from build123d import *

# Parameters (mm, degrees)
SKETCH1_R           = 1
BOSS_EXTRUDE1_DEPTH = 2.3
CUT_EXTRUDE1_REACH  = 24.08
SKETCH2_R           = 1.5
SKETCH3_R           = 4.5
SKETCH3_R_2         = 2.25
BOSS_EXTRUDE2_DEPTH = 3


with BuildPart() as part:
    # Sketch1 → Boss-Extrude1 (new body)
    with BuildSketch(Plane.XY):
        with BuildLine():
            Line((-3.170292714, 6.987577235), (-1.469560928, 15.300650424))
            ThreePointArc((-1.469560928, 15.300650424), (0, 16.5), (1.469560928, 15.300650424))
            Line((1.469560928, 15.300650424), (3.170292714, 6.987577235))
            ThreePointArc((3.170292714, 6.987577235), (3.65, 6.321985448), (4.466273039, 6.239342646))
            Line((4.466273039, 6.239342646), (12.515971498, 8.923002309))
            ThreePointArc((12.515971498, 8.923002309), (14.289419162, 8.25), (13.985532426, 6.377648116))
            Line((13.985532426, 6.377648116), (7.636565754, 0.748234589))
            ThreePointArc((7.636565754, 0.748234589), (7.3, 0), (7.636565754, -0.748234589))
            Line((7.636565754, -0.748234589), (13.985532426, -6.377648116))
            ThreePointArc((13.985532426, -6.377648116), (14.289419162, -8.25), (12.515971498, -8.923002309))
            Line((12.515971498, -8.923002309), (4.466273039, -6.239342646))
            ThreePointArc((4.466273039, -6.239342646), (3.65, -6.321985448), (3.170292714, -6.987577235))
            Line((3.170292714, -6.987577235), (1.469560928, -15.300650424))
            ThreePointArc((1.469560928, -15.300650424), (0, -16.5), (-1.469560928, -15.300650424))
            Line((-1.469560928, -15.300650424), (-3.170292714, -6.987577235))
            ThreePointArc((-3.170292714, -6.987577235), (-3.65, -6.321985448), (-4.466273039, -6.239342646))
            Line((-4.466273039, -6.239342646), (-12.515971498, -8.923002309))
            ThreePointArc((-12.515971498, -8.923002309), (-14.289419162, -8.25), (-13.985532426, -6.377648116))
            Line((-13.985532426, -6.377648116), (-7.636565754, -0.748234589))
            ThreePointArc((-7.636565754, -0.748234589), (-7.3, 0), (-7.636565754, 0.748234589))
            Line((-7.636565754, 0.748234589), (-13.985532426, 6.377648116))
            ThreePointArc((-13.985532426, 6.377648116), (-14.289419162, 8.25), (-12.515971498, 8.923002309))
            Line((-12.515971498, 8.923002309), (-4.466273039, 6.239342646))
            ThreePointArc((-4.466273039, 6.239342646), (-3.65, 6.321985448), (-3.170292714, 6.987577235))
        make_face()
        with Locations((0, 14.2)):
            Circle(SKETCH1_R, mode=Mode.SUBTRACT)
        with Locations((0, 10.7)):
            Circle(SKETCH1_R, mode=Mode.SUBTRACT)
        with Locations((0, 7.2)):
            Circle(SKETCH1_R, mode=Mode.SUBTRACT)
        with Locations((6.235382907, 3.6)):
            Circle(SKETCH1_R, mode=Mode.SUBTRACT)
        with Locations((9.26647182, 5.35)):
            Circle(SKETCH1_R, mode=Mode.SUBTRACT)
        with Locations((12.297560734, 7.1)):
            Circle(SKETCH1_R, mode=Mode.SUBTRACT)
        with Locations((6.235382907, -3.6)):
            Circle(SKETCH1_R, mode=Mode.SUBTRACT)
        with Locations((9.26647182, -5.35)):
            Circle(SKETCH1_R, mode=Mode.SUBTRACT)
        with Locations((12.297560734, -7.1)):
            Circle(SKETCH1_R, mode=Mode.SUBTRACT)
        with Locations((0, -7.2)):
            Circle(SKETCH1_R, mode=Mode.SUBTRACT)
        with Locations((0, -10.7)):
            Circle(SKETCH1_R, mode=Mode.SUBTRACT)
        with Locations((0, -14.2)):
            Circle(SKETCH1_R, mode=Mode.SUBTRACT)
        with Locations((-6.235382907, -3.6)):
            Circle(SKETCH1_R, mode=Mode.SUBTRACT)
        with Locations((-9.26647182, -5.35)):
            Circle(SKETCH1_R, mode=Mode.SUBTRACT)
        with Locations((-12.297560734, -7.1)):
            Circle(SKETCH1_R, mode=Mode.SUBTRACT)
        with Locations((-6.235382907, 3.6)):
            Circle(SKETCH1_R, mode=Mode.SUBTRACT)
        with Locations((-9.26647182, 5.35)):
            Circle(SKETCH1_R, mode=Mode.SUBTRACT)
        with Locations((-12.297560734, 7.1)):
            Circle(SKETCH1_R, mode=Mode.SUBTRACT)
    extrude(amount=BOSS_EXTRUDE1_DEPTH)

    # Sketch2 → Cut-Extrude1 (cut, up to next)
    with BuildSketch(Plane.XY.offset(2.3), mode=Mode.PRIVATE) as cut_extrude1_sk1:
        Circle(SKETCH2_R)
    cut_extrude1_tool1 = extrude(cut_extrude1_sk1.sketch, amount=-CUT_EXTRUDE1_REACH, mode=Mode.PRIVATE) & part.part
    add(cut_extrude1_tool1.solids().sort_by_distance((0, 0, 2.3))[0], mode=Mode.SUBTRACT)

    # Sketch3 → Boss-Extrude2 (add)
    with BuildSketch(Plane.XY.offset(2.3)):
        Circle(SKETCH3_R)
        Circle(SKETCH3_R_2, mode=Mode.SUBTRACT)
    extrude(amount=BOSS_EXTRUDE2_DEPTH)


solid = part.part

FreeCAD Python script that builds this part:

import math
import FreeCAD as App
import Part
import Sketcher

doc = App.newDocument("Part")
body = doc.addObject("PartDesign::Body", "Body")

sketch1 = body.newObject("Sketcher::SketchObject", "Sketch")
sketch1.AttachmentSupport = (doc.getObject("XY_Plane"), [""])
sketch1.MapMode = "FlatFace"
sketch1.addGeometry(Part.LineSegment(App.Vector(-1.5, 15.3, 0), App.Vector(-3.2, 7, 0)), False)
sketch1.addGeometry(Part.ArcOfCircle(Part.Circle(App.Vector(-4.2, 7.2, 0), App.Vector(0, 0, 1), 1), math.radians(-108), math.radians(-12)), False)
sketch1.addGeometry(Part.LineSegment(App.Vector(-4.5, 6.2, 0), App.Vector(-12.5, 8.9, 0)), False)
sketch1.addGeometry(Part.ArcOfCircle(Part.Circle(App.Vector(-13, 7.5, 0), App.Vector(0, 0, 1), 1.5), math.radians(72), math.radians(228)), False)
sketch1.addGeometry(Part.LineSegment(App.Vector(-14, 6.4, 0), App.Vector(-7.6, 0.7, 0)), False)
sketch1.addGeometry(Part.ArcOfCircle(Part.Circle(App.Vector(-8.3, 0, 0), App.Vector(0, 0, 1), 1), math.radians(-48), math.radians(48)), False)
sketch1.addGeometry(Part.LineSegment(App.Vector(-7.6, -0.7, 0), App.Vector(-14, -6.4, 0)), False)
sketch1.addGeometry(Part.ArcOfCircle(Part.Circle(App.Vector(-13, -7.5, 0), App.Vector(0, 0, 1), 1.5), math.radians(132), math.radians(288)), False)
sketch1.addGeometry(Part.LineSegment(App.Vector(-12.5, -8.9, 0), App.Vector(-4.5, -6.2, 0)), False)
sketch1.addGeometry(Part.ArcOfCircle(Part.Circle(App.Vector(-4.2, -7.2, 0), App.Vector(0, 0, 1), 1), math.radians(12), math.radians(108)), False)
sketch1.addGeometry(Part.LineSegment(App.Vector(-3.2, -7, 0), App.Vector(-1.5, -15.3, 0)), False)
sketch1.addGeometry(Part.ArcOfCircle(Part.Circle(App.Vector(0, -15, 0), App.Vector(0, 0, 1), 1.5), math.radians(-168), math.radians(-12)), False)
sketch1.addGeometry(Part.LineSegment(App.Vector(1.5, -15.3, 0), App.Vector(3.2, -7, 0)), False)
sketch1.addGeometry(Part.ArcOfCircle(Part.Circle(App.Vector(4.2, -7.2, 0), App.Vector(0, 0, 1), 1), math.radians(72), math.radians(168)), False)
sketch1.addGeometry(Part.LineSegment(App.Vector(4.5, -6.2, 0), App.Vector(12.5, -8.9, 0)), False)
sketch1.addGeometry(Part.ArcOfCircle(Part.Circle(App.Vector(13, -7.5, 0), App.Vector(0, 0, 1), 1.5), math.radians(-108), math.radians(48)), False)
sketch1.addGeometry(Part.LineSegment(App.Vector(14, -6.4, 0), App.Vector(7.6, -0.7, 0)), False)
sketch1.addGeometry(Part.ArcOfCircle(Part.Circle(App.Vector(8.3, 0, 0), App.Vector(0, 0, 1), 1), math.radians(132), math.radians(228)), False)
sketch1.addGeometry(Part.LineSegment(App.Vector(7.6, 0.7, 0), App.Vector(14, 6.4, 0)), False)
sketch1.addGeometry(Part.ArcOfCircle(Part.Circle(App.Vector(13, 7.5, 0), App.Vector(0, 0, 1), 1.5), math.radians(-48), math.radians(108)), False)
sketch1.addGeometry(Part.LineSegment(App.Vector(12.5, 8.9, 0), App.Vector(4.5, 6.2, 0)), False)
sketch1.addGeometry(Part.ArcOfCircle(Part.Circle(App.Vector(4.2, 7.2, 0), App.Vector(0, 0, 1), 1), math.radians(-168), math.radians(-72)), False)
sketch1.addGeometry(Part.LineSegment(App.Vector(3.2, 7, 0), App.Vector(1.5, 15.3, 0)), False)
sketch1.addGeometry(Part.ArcOfCircle(Part.Circle(App.Vector(0, 15, 0), App.Vector(0, 0, 1), 1.5), math.radians(12), math.radians(168)), False)
sketch1.addGeometry(Part.Circle(App.Vector(12.3, -7.1, 0), App.Vector(0, 0, 1), 1), False)
sketch1.addGeometry(Part.Circle(App.Vector(9.3, -5.3, 0), App.Vector(0, 0, 1), 1), False)
sketch1.addGeometry(Part.Circle(App.Vector(6.2, -3.6, 0), App.Vector(0, 0, 1), 1), False)
sketch1.addGeometry(Part.Circle(App.Vector(0, -14.2, 0), App.Vector(0, 0, 1), 1), False)
sketch1.addGeometry(Part.Circle(App.Vector(0, -10.7, 0), App.Vector(0, 0, 1), 1), False)
sketch1.addGeometry(Part.Circle(App.Vector(0, -7.2, 0), App.Vector(0, 0, 1), 1), False)
sketch1.addGeometry(Part.Circle(App.Vector(-6.2, -3.6, 0), App.Vector(0, 0, 1), 1), False)
sketch1.addGeometry(Part.Circle(App.Vector(-9.3, -5.3, 0), App.Vector(0, 0, 1), 1), False)
sketch1.addGeometry(Part.Circle(App.Vector(-12.3, -7.1, 0), App.Vector(0, 0, 1), 1), False)
sketch1.addGeometry(Part.Circle(App.Vector(12.3, 7.1, 0), App.Vector(0, 0, 1), 1), False)
sketch1.addGeometry(Part.Circle(App.Vector(9.3, 5.3, 0), App.Vector(0, 0, 1), 1), False)
sketch1.addGeometry(Part.Circle(App.Vector(6.2, 3.6, 0), App.Vector(0, 0, 1), 1), False)
sketch1.addGeometry(Part.Circle(App.Vector(-6.2, 3.6, 0), App.Vector(0, 0, 1), 1), False)
sketch1.addGeometry(Part.Circle(App.Vector(0, 7.2, 0), App.Vector(0, 0, 1), 1), False)
sketch1.addGeometry(Part.Circle(App.Vector(-9.3, 5.3, 0), App.Vector(0, 0, 1), 1), False)
sketch1.addGeometry(Part.Circle(App.Vector(-12.3, 7.1, 0), App.Vector(0, 0, 1), 1), False)
sketch1.addGeometry(Part.Circle(App.Vector(0, 10.7, 0), App.Vector(0, 0, 1), 1), False)
sketch1.addGeometry(Part.Circle(App.Vector(0, 14.2, 0), App.Vector(0, 0, 1), 1), False)
sketch1.addConstraint(Sketcher.Constraint("Tangent", 0, 2, 1, 2))
sketch1.addConstraint(Sketcher.Constraint("Tangent", 1, 1, 2, 1))
sketch1.addConstraint(Sketcher.Constraint("Tangent", 2, 2, 3, 1))
sketch1.addConstraint(Sketcher.Constraint("Tangent", 3, 2, 4, 1))
sketch1.addConstraint(Sketcher.Constraint("Tangent", 4, 2, 5, 2))
sketch1.addConstraint(Sketcher.Constraint("Tangent", 5, 1, 6, 1))
sketch1.addConstraint(Sketcher.Constraint("Tangent", 6, 2, 7, 1))
sketch1.addConstraint(Sketcher.Constraint("Tangent", 7, 2, 8, 1))
sketch1.addConstraint(Sketcher.Constraint("Tangent", 8, 2, 9, 2))
sketch1.addConstraint(Sketcher.Constraint("Tangent", 9, 1, 10, 1))
sketch1.addConstraint(Sketcher.Constraint("Tangent", 10, 2, 11, 1))
sketch1.addConstraint(Sketcher.Constraint("Tangent", 11, 2, 12, 1))
sketch1.addConstraint(Sketcher.Constraint("Tangent", 12, 2, 13, 2))
sketch1.addConstraint(Sketcher.Constraint("Tangent", 13, 1, 14, 1))
sketch1.addConstraint(Sketcher.Constraint("Tangent", 14, 2, 15, 1))
sketch1.addConstraint(Sketcher.Constraint("Tangent", 15, 2, 16, 1))
sketch1.addConstraint(Sketcher.Constraint("Tangent", 16, 2, 17, 2))
sketch1.addConstraint(Sketcher.Constraint("Tangent", 17, 1, 18, 1))
sketch1.addConstraint(Sketcher.Constraint("Tangent", 18, 2, 19, 1))
sketch1.addConstraint(Sketcher.Constraint("Tangent", 19, 2, 20, 1))
sketch1.addConstraint(Sketcher.Constraint("Tangent", 20, 2, 21, 2))
sketch1.addConstraint(Sketcher.Constraint("Tangent", 21, 1, 22, 1))
sketch1.addConstraint(Sketcher.Constraint("Tangent", 22, 2, 23, 1))
sketch1.addConstraint(Sketcher.Constraint("Tangent", 23, 2, 0, 1))
sketch1.addConstraint(Sketcher.Constraint("Equal", 1, 5))
sketch1.addConstraint(Sketcher.Constraint("Equal", 3, 7))
sketch1.addConstraint(Sketcher.Constraint("Equal", 5, 9))
sketch1.addConstraint(Sketcher.Constraint("Equal", 7, 11))
sketch1.addConstraint(Sketcher.Constraint("Equal", 9, 13))
sketch1.addConstraint(Sketcher.Constraint("Equal", 11, 15))
sketch1.addConstraint(Sketcher.Constraint("Equal", 13, 17))
sketch1.addConstraint(Sketcher.Constraint("Equal", 15, 19))
sketch1.addConstraint(Sketcher.Constraint("Equal", 17, 21))
sketch1.addConstraint(Sketcher.Constraint("Equal", 19, 23))
sketch1.addConstraint(Sketcher.Constraint("Equal", 21, 24))
sketch1.addConstraint(Sketcher.Constraint("Equal", 24, 25))
sketch1.addConstraint(Sketcher.Constraint("Equal", 25, 26))
sketch1.addConstraint(Sketcher.Constraint("Equal", 26, 27))
sketch1.addConstraint(Sketcher.Constraint("Equal", 27, 28))
sketch1.addConstraint(Sketcher.Constraint("Equal", 28, 29))
sketch1.addConstraint(Sketcher.Constraint("Equal", 29, 30))
sketch1.addConstraint(Sketcher.Constraint("Equal", 30, 31))
sketch1.addConstraint(Sketcher.Constraint("Equal", 31, 32))
sketch1.addConstraint(Sketcher.Constraint("Equal", 32, 33))
sketch1.addConstraint(Sketcher.Constraint("Equal", 33, 34))
sketch1.addConstraint(Sketcher.Constraint("Equal", 34, 35))
sketch1.addConstraint(Sketcher.Constraint("Equal", 35, 36))
sketch1.addConstraint(Sketcher.Constraint("Equal", 36, 37))
sketch1.addConstraint(Sketcher.Constraint("Equal", 37, 38))
sketch1.addConstraint(Sketcher.Constraint("Equal", 38, 39))
sketch1.addConstraint(Sketcher.Constraint("Equal", 39, 40))
sketch1.addConstraint(Sketcher.Constraint("Equal", 40, 41))
sketch1.addConstraint(Sketcher.Constraint("Symmetric", 1, 3, 13, 3, -1, 1))
sketch1.addConstraint(Sketcher.Constraint("Symmetric", 3, 3, 15, 3, -1, 1))
sketch1.addConstraint(Sketcher.Constraint("Symmetric", 5, 3, 17, 3, -1, 1))
sketch1.addConstraint(Sketcher.Constraint("Symmetric", 7, 3, 19, 3, -1, 1))
sketch1.addConstraint(Sketcher.Constraint("Symmetric", 9, 3, 21, 3, -1, 1))
sketch1.addConstraint(Sketcher.Constraint("Symmetric", 11, 3, 23, 3, -1, 1))
sketch1.addConstraint(Sketcher.Constraint("Symmetric", 32, 3, 33, 3, -1, 1))
sketch1.addConstraint(Sketcher.Constraint("Symmetric", 31, 3, 34, 3, -1, 1))
sketch1.addConstraint(Sketcher.Constraint("Symmetric", 30, 3, 35, 3, -1, 1))
sketch1.addConstraint(Sketcher.Constraint("Symmetric", 26, 3, 36, 3, -1, 1))
sketch1.addConstraint(Sketcher.Constraint("Symmetric", 29, 3, 37, 3, -1, 1))
sketch1.addConstraint(Sketcher.Constraint("Symmetric", 25, 3, 38, 3, -1, 1))
sketch1.addConstraint(Sketcher.Constraint("Symmetric", 24, 3, 39, 3, -1, 1))
sketch1.addConstraint(Sketcher.Constraint("Symmetric", 28, 3, 40, 3, -1, 1))
sketch1.addConstraint(Sketcher.Constraint("Symmetric", 27, 3, 41, 3, -1, 1))
sketch1.addConstraint(Sketcher.Constraint("Symmetric", 9, 3, 13, 3, -2))
sketch1.addConstraint(Sketcher.Constraint("Symmetric", 7, 3, 15, 3, -2))
sketch1.addConstraint(Sketcher.Constraint("Symmetric", 26, 3, 30, 3, -2))
sketch1.addConstraint(Sketcher.Constraint("Symmetric", 25, 3, 31, 3, -2))
sketch1.addConstraint(Sketcher.Constraint("Symmetric", 24, 3, 32, 3, -2))
sketch1.addConstraint(Sketcher.Constraint("PointOnObject", 5, 3, -1))
sketch1.addConstraint(Sketcher.Constraint("PointOnObject", 11, 3, -2))
sketch1.addConstraint(Sketcher.Constraint("PointOnObject", 27, 3, -2))
sketch1.addConstraint(Sketcher.Constraint("PointOnObject", 28, 3, -2))
sketch1.addConstraint(Sketcher.Constraint("PointOnObject", 29, 3, -2))
sketch1.addConstraint(Sketcher.Constraint("Equal", 0, 2))
sketch1.addConstraint(Sketcher.Constraint("Equal", 2, 4))
sketch1.addConstraint(Sketcher.Constraint("Diameter", 24, 2.0))
sketch1.addConstraint(Sketcher.Constraint("Radius", 3, 1.5))
sketch1.addConstraint(Sketcher.Constraint("DistanceY", 11, 3, -1, 1, 15.0))
sketch1.addConstraint(Sketcher.Constraint("DistanceY", 7, 3, 3, 3, 15.0))
sketch1.addConstraint(Sketcher.Constraint("DistanceY", 27, 3, 29, 3, 7.0))
sketch1.addConstraint(Sketcher.Constraint("DistanceX", 5, 3, -1, 1, 8.3))
sketch1.addConstraint(Sketcher.Constraint("DistanceY", 24, 3, -1, 1, 7.1))
sketch1.addConstraint(Sketcher.Constraint("DistanceY", 26, 3, -1, 1, 3.6))
sketch1.addConstraint(Sketcher.Constraint("DistanceY", 27, 3, -1, 1, 14.2))
sketch1.addConstraint(Sketcher.Constraint("DistanceY", 28, 3, -1, 1, 10.7))
sketch1.addConstraint(Sketcher.Constraint("DistanceX", 9, 3, 13, 3, 8.3))
sketch1.addConstraint(Sketcher.Constraint("DistanceY", 25, 3, -1, 1, 5.35))
sketch1.addConstraint(Sketcher.Constraint("DistanceX", 26, 3, 15, 3, 6.754998))
sketch1.addConstraint(Sketcher.Constraint("DistanceX", 38, 3, 1, 1, 4.800199))
sketch1.addConstraint(Sketcher.Constraint("DistanceX", -1, 1, 24, 3, 12.297561))
pad1 = body.newObject("PartDesign::Pad", "Pad")
pad1.Profile = sketch1
pad1.Length = 2.3

sketch2 = body.newObject("Sketcher::SketchObject", "Sketch001")
sketch2.AttachmentSupport = (doc.getObject("XY_Plane"), [""])
sketch2.MapMode = "FlatFace"
sketch2.AttachmentOffset = App.Placement(App.Vector(0, 0, 2.3), App.Rotation())
sketch2.addGeometry(Part.Circle(App.Vector(0, 0, 0), App.Vector(0, 0, 1), 1.5), False)
sketch2.addConstraint(Sketcher.Constraint("Coincident", 0, 3, -1, 1))
sketch2.addConstraint(Sketcher.Constraint("Diameter", 0, 3.0))
pocket1 = body.newObject("PartDesign::Pocket", "Pocket")
pocket1.Profile = sketch2
pocket1.Type = "UpToFirst"

sketch3 = body.newObject("Sketcher::SketchObject", "Sketch002")
sketch3.AttachmentSupport = (doc.getObject("XY_Plane"), [""])
sketch3.MapMode = "FlatFace"
sketch3.AttachmentOffset = App.Placement(App.Vector(0, 0, 2.3), App.Rotation())
sketch3.addGeometry(Part.Circle(App.Vector(0, 0, 0), App.Vector(0, 0, 1), 4.5), False)
sketch3.addGeometry(Part.Circle(App.Vector(0, 0, 0), App.Vector(0, 0, 1), 2.2), False)
sketch3.addConstraint(Sketcher.Constraint("Coincident", 0, 3, -1, 1))
sketch3.addConstraint(Sketcher.Constraint("Coincident", 1, 3, -1, 1))
sketch3.addConstraint(Sketcher.Constraint("Diameter", 0, 9.0))
sketch3.addConstraint(Sketcher.Constraint("Diameter", 1, 4.5))
pad2 = body.newObject("PartDesign::Pad", "Pad001")
pad2.Profile = sketch3
pad2.Length = 3

doc.recompute()
